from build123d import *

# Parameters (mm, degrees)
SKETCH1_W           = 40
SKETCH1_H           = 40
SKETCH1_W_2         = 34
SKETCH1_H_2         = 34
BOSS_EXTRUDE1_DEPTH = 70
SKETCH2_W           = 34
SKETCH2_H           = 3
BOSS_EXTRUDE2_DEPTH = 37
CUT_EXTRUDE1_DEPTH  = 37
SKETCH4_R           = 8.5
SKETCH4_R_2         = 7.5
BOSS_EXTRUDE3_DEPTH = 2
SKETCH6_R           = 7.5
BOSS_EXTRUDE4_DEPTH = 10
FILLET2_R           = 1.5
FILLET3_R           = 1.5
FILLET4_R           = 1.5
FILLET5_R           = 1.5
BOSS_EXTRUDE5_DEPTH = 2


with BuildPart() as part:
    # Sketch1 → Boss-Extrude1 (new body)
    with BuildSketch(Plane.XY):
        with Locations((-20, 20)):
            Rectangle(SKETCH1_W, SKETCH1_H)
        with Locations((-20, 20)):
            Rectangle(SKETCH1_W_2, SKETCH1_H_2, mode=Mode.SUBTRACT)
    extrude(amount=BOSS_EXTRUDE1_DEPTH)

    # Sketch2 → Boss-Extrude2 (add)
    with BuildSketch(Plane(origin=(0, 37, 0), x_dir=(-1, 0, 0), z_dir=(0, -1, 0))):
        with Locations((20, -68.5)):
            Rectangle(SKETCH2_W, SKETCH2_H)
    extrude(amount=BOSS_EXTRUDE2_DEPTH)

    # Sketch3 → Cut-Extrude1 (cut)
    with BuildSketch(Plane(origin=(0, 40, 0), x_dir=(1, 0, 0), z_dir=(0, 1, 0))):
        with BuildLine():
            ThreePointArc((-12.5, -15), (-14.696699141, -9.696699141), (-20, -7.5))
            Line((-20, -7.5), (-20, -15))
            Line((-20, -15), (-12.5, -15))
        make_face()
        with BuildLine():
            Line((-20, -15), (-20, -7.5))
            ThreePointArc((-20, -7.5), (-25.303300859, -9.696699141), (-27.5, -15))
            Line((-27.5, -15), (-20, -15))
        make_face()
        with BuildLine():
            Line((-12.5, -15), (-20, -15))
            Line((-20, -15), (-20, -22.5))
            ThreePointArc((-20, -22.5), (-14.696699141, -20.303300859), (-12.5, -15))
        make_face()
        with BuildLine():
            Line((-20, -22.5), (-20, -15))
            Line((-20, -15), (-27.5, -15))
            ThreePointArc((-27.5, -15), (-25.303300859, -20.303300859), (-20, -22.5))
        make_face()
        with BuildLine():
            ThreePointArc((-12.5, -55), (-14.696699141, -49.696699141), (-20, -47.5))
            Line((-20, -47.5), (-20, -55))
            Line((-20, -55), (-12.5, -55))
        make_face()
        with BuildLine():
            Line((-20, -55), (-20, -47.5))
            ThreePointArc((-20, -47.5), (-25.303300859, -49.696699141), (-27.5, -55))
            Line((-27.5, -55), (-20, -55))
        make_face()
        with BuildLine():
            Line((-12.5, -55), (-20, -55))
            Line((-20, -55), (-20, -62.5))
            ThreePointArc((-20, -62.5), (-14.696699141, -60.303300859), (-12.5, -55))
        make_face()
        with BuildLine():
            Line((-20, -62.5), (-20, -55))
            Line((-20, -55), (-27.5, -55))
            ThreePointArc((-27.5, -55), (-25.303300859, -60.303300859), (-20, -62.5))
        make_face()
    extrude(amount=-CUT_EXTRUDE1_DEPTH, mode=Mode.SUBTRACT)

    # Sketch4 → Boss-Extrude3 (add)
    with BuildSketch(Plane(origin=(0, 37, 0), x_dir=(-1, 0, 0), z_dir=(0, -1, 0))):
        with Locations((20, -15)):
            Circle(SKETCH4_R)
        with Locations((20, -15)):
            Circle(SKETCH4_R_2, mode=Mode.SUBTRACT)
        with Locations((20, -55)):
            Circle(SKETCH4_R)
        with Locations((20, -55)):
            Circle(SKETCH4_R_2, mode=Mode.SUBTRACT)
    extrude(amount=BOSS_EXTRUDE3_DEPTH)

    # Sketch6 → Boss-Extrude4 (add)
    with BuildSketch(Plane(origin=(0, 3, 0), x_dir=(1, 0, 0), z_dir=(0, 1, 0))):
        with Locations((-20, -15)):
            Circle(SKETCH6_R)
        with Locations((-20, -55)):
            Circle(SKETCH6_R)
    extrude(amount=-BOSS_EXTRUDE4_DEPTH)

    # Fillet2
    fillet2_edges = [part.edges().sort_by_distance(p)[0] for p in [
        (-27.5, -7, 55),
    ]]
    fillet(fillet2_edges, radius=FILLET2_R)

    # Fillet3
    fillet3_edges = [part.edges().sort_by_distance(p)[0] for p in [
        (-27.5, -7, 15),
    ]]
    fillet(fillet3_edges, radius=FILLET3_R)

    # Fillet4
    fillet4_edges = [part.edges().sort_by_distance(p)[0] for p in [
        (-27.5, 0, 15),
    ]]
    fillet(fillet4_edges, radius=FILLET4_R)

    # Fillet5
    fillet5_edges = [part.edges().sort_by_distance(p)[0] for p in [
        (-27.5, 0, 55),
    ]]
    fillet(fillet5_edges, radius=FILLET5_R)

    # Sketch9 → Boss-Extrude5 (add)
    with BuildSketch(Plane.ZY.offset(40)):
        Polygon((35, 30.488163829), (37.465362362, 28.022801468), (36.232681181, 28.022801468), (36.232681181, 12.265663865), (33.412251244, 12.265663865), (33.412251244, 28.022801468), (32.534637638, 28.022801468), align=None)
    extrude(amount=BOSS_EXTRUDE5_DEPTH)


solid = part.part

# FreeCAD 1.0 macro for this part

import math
import FreeCAD as App
import Part
import Sketcher
from FreeCAD import Vector


def edges_at(feature, points):
    """Names of the edges that pass closest to the given points."""
    edges = feature.Shape.Edges
    near = lambda p: min(range(len(edges)), key=lambda i: edges[i].distToShape(Part.Vertex(*p))[0])
    return sorted({f"Edge{near(p) + 1}" for p in points})


def add_polygon(sketch, points):
    """Adds a closed chain of lines whose ends are joined by coincident constraints."""
    first, n = sketch.GeometryCount, len(points)
    for a, b in zip(points, points[1:] + points[:1]):
        sketch.addGeometry(Part.LineSegment(App.Vector(*a, 0), App.Vector(*b, 0)), False)
    for i in range(n):
        sketch.addConstraint(Sketcher.Constraint("Coincident", first + i, 2, first + (i + 1) % n, 1))

doc = App.newDocument("Part")
body = doc.addObject("PartDesign::Body", "Body")

# Sketch on XY plane
sketch1 = body.newObject("Sketcher::SketchObject", "Sketch")
sketch1.AttachmentSupport = (doc.getObject("XY_Plane"), [""])
sketch1.MapMode = "FlatFace"
add_polygon(sketch1, [(-40, 40), (-40, 0), (0, 0), (0, 40)])  # lines 0-3
add_polygon(sketch1, [(-3, 3), (-37, 3), (-37, 37), (-3, 37)])  # lines 4-7
sketch1.addConstraint(Sketcher.Constraint("Vertical", 0))
sketch1.addConstraint(Sketcher.Constraint("Horizontal", 1))
sketch1.addConstraint(Sketcher.Constraint("Vertical", 2))
sketch1.addConstraint(Sketcher.Constraint("Horizontal", 3))
sketch1.addConstraint(Sketcher.Constraint("Horizontal", 4))
sketch1.addConstraint(Sketcher.Constraint("Vertical", 5))
sketch1.addConstraint(Sketcher.Constraint("Horizontal", 6))
sketch1.addConstraint(Sketcher.Constraint("Vertical", 7))
sketch1.addConstraint(Sketcher.Constraint("Coincident", 1, 2, -1, 1))
sketch1.addConstraint(Sketcher.Constraint("Equal", 3, 0))
sketch1.addConstraint(Sketcher.Constraint("Equal", 6, 5))
sketch1.addConstraint(Sketcher.Constraint("DistanceX", 1, 1, 1, 2, 40.0))
sketch1.addConstraint(Sketcher.Constraint("DistanceX", 4, 2, 4, 1, 34.0))
sketch1.addConstraint(Sketcher.Constraint("DistanceX", 4, 2, -1, 1, 37.0))
sketch1.addConstraint(Sketcher.Constraint("DistanceY", -1, 1, 4, 2, 3.0))
pad1 = body.newObject("PartDesign::Pad", "Pad")
pad1.Profile = sketch1
pad1.Length = 70

# Sketch on XZ plane
sketch2 = body.newObject("Sketcher::SketchObject", "Sketch001")
sketch2.AttachmentSupport = (doc.getObject("XZ_Plane"), [""])
sketch2.MapMode = "FlatFace"
sketch2.AttachmentOffset = App.Placement(Vector(0, 0, -37), App.Rotation())
add_polygon(sketch2, [(-3, 67), (-3, 70), (-37, 70), (-37, 67)])  # lines 0-3
sketch2.addConstraint(Sketcher.Constraint("Vertical", 0))
sketch2.addConstraint(Sketcher.Constraint("Horizontal", 1))
sketch2.addConstraint(Sketcher.Constraint("Vertical", 2))
sketch2.addConstraint(Sketcher.Constraint("Horizontal", 3))
sketch2.addConstraint(Sketcher.Constraint("DistanceX", 1, 2, 1, 1, 34.0))
sketch2.addConstraint(Sketcher.Constraint("DistanceY", 0, 1, 0, 2, 3.0))
sketch2.addConstraint(Sketcher.Constraint("DistanceX", 0, 2, -1, 1, 3.0))
sketch2.addConstraint(Sketcher.Constraint("DistanceY", -1, 1, 0, 2, 70.0))
pad2 = body.newObject("PartDesign::Pad", "Pad001")
pad2.Profile = sketch2
pad2.Length = 37

# Sketch on XZ plane
sketch3 = body.newObject("Sketcher::SketchObject", "Sketch002")
sketch3.AttachmentSupport = (doc.getObject("XZ_Plane"), [""])
sketch3.MapMode = "FlatFace"
sketch3.AttachmentOffset = App.Placement(Vector(0, 0, -40), App.Rotation())
sketch3.addGeometry(Part.ArcOfCircle(Part.Circle(Vector(-20, 15, 0), Vector(0, 0, 1), 7.5), math.radians(180), math.radians(270)), False)
sketch3.addGeometry(Part.ArcOfCircle(Part.Circle(Vector(-20, 15, 0), Vector(0, 0, 1), 7.5), math.radians(90), math.radians(180)), False)
sketch3.addGeometry(Part.ArcOfCircle(Part.Circle(Vector(-20, 15, 0), Vector(0, 0, 1), 7.5), math.radians(0), math.radians(90)), False)
sketch3.addGeometry(Part.ArcOfCircle(Part.Circle(Vector(-20, 15, 0), Vector(0, 0, 1), 7.5), math.radians(-90), math.radians(0)), False)
sketch3.addGeometry(Part.ArcOfCircle(Part.Circle(Vector(-20, 55, 0), Vector(0, 0, 1), 7.5), math.radians(180), math.radians(270)), False)
sketch3.addGeometry(Part.ArcOfCircle(Part.Circle(Vector(-20, 55, 0), Vector(0, 0, 1), 7.5), math.radians(90), math.radians(180)), False)
sketch3.addGeometry(Part.ArcOfCircle(Part.Circle(Vector(-20, 55, 0), Vector(0, 0, 1), 7.5), math.radians(0), math.radians(90)), False)
sketch3.addGeometry(Part.ArcOfCircle(Part.Circle(Vector(-20, 55, 0), Vector(0, 0, 1), 7.5), math.radians(-90), math.radians(0)), False)
sketch3.addConstraint(Sketcher.Constraint("Tangent", 0, 1, 1, 2))
sketch3.addConstraint(Sketcher.Constraint("Tangent", 1, 1, 2, 2))
sketch3.addConstraint(Sketcher.Constraint("Tangent", 2, 1, 3, 2))
sketch3.addConstraint(Sketcher.Constraint("Tangent", 3, 1, 0, 2))
sketch3.addConstraint(Sketcher.Constraint("Tangent", 4, 1, 5, 2))
sketch3.addConstraint(Sketcher.Constraint("Tangent", 5, 1, 6, 2))
sketch3.addConstraint(Sketcher.Constraint("Tangent", 6, 1, 7, 2))
sketch3.addConstraint(Sketcher.Constraint("Tangent", 7, 1, 4, 2))
sketch3.addConstraint(Sketcher.Constraint("Equal", 0, 1))
sketch3.addConstraint(Sketcher.Constraint("Equal", 3, 4))
sketch3.addConstraint(Sketcher.Constraint("Equal", 4, 5))
sketch3.addConstraint(Sketcher.Constraint("Horizontal", 3, 3, 0, 1))
sketch3.addConstraint(Sketcher.Constraint("Horizontal", 0, 1, 2, 1))
sketch3.addConstraint(Sketcher.Constraint("Horizontal", 7, 3, 4, 1))
sketch3.addConstraint(Sketcher.Constraint("Horizontal", 4, 1, 6, 1))
sketch3.addConstraint(Sketcher.Constraint("Vertical", 3, 3, 4, 3))
sketch3.addConstraint(Sketcher.Constraint("Vertical", 7, 3, 1, 1))
sketch3.addConstraint(Sketcher.Constraint("Vertical", 1, 1, 3, 1))
sketch3.addConstraint(Sketcher.Constraint("Vertical", 3, 1, 5, 1))
sketch3.addConstraint(Sketcher.Constraint("Vertical", 5, 1, 7, 1))
sketch3.addConstraint(Sketcher.Constraint("Radius", 0, 7.5))
sketch3.addConstraint(Sketcher.Constraint("DistanceX", 0, 3, -1, 1, 20.0))
sketch3.addConstraint(Sketcher.Constraint("DistanceY", -1, 1, 0, 3, 15.0))
sketch3.addConstraint(Sketcher.Constraint("DistanceY", -1, 1, 4, 3, 55.0))
pocket1 = body.newObject("PartDesign::Pocket", "Pocket")
pocket1.Profile = sketch3
pocket1.Length = 37
pocket1.Reversed = True

# Sketch on XZ plane
sketch4 = body.newObject("Sketcher::SketchObject", "Sketch003")
sketch4.AttachmentSupport = (doc.getObject("XZ_Plane"), [""])
sketch4.MapMode = "FlatFace"
sketch4.AttachmentOffset = App.Placement(Vector(0, 0, -37), App.Rotation())
sketch4.addGeometry(Part.Circle(Vector(-20, 15, 0), Vector(0, 0, 1), 8.5), False)
sketch4.addGeometry(Part.Circle(Vector(-20, 15, 0), Vector(0, 0, 1), 7.5), False)
sketch4.addGeometry(Part.Circle(Vector(-20, 55, 0), Vector(0, 0, 1), 8.5), False)
sketch4.addGeometry(Part.Circle(Vector(-20, 55, 0), Vector(0, 0, 1), 7.5), False)
sketch4.addConstraint(Sketcher.Constraint("Coincident", 1, 3, 0, 3))
sketch4.addConstraint(Sketcher.Constraint("Coincident", 3, 3, 2, 3))
sketch4.addConstraint(Sketcher.Constraint("Equal", 0, 2))
sketch4.addConstraint(Sketcher.Constraint("Equal", 1, 3))
sketch4.addConstraint(Sketcher.Constraint("Vertical", 1, 3, 2, 3))
sketch4.addConstraint(Sketcher.Constraint("Diameter", 0, 17.0))
sketch4.addConstraint(Sketcher.Constraint("Diameter", 1, 15.0))
sketch4.addConstraint(Sketcher.Constraint("DistanceX", 0, 3, -1, 1, 20.0))
sketch4.addConstraint(Sketcher.Constraint("DistanceY", -1, 1, 0, 3, 15.0))
sketch4.addConstraint(Sketcher.Constraint("DistanceY", -1, 1, 2, 3, 55.0))
pad3 = body.newObject("PartDesign::Pad", "Pad002")
pad3.Profile = sketch4
pad3.Length = 2

# Sketch on XZ plane
sketch5 = body.newObject("Sketcher::SketchObject", "Sketch004")
sketch5.AttachmentSupport = (doc.getObject("XZ_Plane"), [""])
sketch5.MapMode = "FlatFace"
sketch5.AttachmentOffset = App.Placement(Vector(0, 0, -3), App.Rotation())
sketch5.addGeometry(Part.Circle(Vector(-20, 15, 0), Vector(0, 0, 1), 7.5), False)
sketch5.addGeometry(Part.Circle(Vector(-20, 55, 0), Vector(0, 0, 1), 7.5), False)
sketch5.addConstraint(Sketcher.Constraint("Equal", 0, 1))
sketch5.addConstraint(Sketcher.Constraint("Vertical", 0, 3, 1, 3))
sketch5.addConstraint(Sketcher.Constraint("Diameter", 0, 15.0))
sketch5.addConstraint(Sketcher.Constraint("DistanceX", 0, 3, -1, 1, 20.0))
sketch5.addConstraint(Sketcher.Constraint("DistanceY", -1, 1, 0, 3, 15.0))
sketch5.addConstraint(Sketcher.Constraint("DistanceY", -1, 1, 1, 3, 55.0))
pad4 = body.newObject("PartDesign::Pad", "Pad003")
pad4.Profile = sketch5
pad4.Length = 10
doc.recompute()

fillet = body.newObject("PartDesign::Fillet", "Fillet")
fillet.Base = (pad4, edges_at(pad4, [(-27.5, -7, 55)]))
fillet.Radius = 1.5
doc.recompute()

fillet2 = body.newObject("PartDesign::Fillet", "Fillet001")
fillet2.Base = (fillet, edges_at(fillet, [(-27.5, -7, 15)]))
fillet2.Radius = 1.5
doc.recompute()

fillet3 = body.newObject("PartDesign::Fillet", "Fillet002")
fillet3.Base = (fillet2, edges_at(fillet2, [(-27.5, 0, 15)]))
fillet3.Radius = 1.5
doc.recompute()

fillet4 = body.newObject("PartDesign::Fillet", "Fillet003")
fillet4.Base = (fillet3, edges_at(fillet3, [(-27.5, 0, 55)]))
fillet4.Radius = 1.5

# Sketch on YZ plane
sketch6 = body.newObject("Sketcher::SketchObject", "Sketch005")
sketch6.AttachmentSupport = (doc.getObject("YZ_Plane"), [""])
sketch6.MapMode = "FlatFace"
sketch6.AttachmentOffset = App.Placement(Vector(0, 0, -40), App.Rotation())
add_polygon(sketch6, [(28.022801, 37.465362), (30.488164, 35), (28.022801, 32.534638), (28.022801, 33.412251), (12.265664, 33.412251), (12.265664, 36.232681), (28.022801, 36.232681)])  # lines 0-6
sketch6.addConstraint(Sketcher.Constraint("Vertical", 2))
sketch6.addConstraint(Sketcher.Constraint("Horizontal", 3))
sketch6.addConstraint(Sketcher.Constraint("Vertical", 4))
sketch6.addConstraint(Sketcher.Constraint("Horizontal", 5))
sketch6.addConstraint(Sketcher.Constraint("Vertical", 6))
sketch6.addConstraint(Sketcher.Constraint("Perpendicular", 0, 1))
sketch6.addConstraint(Sketcher.Constraint("Vertical", 2, 2, 5, 2))
sketch6.addConstraint(Sketcher.Constraint("Equal", 0, 1))
sketch6.addConstraint(Sketcher.Constraint("DistanceY", -1, 1, 0, 2, 35.0))
sketch6.addConstraint(Sketcher.Constraint("DistanceY", 4, 1, 4, 2, 2.82043))
sketch6.addConstraint(Sketcher.Constraint("DistanceY", 6, 1, 6, 2, 1.232681))
sketch6.addConstraint(Sketcher.Constraint("DistanceX", -1, 1, 1, 2, 28.022801))
sketch6.addConstraint(Sketcher.Constraint("DistanceX", 3, 2, 0, 2, 18.2225))
sketch6.addConstraint(Sketcher.Constraint("Distance", 0, 3.486549))
pad5 = body.newObject("PartDesign::Pad", "Pad004")
pad5.Profile = sketch6
pad5.Length = 2
pad5.Reversed = True

doc.recompute()
